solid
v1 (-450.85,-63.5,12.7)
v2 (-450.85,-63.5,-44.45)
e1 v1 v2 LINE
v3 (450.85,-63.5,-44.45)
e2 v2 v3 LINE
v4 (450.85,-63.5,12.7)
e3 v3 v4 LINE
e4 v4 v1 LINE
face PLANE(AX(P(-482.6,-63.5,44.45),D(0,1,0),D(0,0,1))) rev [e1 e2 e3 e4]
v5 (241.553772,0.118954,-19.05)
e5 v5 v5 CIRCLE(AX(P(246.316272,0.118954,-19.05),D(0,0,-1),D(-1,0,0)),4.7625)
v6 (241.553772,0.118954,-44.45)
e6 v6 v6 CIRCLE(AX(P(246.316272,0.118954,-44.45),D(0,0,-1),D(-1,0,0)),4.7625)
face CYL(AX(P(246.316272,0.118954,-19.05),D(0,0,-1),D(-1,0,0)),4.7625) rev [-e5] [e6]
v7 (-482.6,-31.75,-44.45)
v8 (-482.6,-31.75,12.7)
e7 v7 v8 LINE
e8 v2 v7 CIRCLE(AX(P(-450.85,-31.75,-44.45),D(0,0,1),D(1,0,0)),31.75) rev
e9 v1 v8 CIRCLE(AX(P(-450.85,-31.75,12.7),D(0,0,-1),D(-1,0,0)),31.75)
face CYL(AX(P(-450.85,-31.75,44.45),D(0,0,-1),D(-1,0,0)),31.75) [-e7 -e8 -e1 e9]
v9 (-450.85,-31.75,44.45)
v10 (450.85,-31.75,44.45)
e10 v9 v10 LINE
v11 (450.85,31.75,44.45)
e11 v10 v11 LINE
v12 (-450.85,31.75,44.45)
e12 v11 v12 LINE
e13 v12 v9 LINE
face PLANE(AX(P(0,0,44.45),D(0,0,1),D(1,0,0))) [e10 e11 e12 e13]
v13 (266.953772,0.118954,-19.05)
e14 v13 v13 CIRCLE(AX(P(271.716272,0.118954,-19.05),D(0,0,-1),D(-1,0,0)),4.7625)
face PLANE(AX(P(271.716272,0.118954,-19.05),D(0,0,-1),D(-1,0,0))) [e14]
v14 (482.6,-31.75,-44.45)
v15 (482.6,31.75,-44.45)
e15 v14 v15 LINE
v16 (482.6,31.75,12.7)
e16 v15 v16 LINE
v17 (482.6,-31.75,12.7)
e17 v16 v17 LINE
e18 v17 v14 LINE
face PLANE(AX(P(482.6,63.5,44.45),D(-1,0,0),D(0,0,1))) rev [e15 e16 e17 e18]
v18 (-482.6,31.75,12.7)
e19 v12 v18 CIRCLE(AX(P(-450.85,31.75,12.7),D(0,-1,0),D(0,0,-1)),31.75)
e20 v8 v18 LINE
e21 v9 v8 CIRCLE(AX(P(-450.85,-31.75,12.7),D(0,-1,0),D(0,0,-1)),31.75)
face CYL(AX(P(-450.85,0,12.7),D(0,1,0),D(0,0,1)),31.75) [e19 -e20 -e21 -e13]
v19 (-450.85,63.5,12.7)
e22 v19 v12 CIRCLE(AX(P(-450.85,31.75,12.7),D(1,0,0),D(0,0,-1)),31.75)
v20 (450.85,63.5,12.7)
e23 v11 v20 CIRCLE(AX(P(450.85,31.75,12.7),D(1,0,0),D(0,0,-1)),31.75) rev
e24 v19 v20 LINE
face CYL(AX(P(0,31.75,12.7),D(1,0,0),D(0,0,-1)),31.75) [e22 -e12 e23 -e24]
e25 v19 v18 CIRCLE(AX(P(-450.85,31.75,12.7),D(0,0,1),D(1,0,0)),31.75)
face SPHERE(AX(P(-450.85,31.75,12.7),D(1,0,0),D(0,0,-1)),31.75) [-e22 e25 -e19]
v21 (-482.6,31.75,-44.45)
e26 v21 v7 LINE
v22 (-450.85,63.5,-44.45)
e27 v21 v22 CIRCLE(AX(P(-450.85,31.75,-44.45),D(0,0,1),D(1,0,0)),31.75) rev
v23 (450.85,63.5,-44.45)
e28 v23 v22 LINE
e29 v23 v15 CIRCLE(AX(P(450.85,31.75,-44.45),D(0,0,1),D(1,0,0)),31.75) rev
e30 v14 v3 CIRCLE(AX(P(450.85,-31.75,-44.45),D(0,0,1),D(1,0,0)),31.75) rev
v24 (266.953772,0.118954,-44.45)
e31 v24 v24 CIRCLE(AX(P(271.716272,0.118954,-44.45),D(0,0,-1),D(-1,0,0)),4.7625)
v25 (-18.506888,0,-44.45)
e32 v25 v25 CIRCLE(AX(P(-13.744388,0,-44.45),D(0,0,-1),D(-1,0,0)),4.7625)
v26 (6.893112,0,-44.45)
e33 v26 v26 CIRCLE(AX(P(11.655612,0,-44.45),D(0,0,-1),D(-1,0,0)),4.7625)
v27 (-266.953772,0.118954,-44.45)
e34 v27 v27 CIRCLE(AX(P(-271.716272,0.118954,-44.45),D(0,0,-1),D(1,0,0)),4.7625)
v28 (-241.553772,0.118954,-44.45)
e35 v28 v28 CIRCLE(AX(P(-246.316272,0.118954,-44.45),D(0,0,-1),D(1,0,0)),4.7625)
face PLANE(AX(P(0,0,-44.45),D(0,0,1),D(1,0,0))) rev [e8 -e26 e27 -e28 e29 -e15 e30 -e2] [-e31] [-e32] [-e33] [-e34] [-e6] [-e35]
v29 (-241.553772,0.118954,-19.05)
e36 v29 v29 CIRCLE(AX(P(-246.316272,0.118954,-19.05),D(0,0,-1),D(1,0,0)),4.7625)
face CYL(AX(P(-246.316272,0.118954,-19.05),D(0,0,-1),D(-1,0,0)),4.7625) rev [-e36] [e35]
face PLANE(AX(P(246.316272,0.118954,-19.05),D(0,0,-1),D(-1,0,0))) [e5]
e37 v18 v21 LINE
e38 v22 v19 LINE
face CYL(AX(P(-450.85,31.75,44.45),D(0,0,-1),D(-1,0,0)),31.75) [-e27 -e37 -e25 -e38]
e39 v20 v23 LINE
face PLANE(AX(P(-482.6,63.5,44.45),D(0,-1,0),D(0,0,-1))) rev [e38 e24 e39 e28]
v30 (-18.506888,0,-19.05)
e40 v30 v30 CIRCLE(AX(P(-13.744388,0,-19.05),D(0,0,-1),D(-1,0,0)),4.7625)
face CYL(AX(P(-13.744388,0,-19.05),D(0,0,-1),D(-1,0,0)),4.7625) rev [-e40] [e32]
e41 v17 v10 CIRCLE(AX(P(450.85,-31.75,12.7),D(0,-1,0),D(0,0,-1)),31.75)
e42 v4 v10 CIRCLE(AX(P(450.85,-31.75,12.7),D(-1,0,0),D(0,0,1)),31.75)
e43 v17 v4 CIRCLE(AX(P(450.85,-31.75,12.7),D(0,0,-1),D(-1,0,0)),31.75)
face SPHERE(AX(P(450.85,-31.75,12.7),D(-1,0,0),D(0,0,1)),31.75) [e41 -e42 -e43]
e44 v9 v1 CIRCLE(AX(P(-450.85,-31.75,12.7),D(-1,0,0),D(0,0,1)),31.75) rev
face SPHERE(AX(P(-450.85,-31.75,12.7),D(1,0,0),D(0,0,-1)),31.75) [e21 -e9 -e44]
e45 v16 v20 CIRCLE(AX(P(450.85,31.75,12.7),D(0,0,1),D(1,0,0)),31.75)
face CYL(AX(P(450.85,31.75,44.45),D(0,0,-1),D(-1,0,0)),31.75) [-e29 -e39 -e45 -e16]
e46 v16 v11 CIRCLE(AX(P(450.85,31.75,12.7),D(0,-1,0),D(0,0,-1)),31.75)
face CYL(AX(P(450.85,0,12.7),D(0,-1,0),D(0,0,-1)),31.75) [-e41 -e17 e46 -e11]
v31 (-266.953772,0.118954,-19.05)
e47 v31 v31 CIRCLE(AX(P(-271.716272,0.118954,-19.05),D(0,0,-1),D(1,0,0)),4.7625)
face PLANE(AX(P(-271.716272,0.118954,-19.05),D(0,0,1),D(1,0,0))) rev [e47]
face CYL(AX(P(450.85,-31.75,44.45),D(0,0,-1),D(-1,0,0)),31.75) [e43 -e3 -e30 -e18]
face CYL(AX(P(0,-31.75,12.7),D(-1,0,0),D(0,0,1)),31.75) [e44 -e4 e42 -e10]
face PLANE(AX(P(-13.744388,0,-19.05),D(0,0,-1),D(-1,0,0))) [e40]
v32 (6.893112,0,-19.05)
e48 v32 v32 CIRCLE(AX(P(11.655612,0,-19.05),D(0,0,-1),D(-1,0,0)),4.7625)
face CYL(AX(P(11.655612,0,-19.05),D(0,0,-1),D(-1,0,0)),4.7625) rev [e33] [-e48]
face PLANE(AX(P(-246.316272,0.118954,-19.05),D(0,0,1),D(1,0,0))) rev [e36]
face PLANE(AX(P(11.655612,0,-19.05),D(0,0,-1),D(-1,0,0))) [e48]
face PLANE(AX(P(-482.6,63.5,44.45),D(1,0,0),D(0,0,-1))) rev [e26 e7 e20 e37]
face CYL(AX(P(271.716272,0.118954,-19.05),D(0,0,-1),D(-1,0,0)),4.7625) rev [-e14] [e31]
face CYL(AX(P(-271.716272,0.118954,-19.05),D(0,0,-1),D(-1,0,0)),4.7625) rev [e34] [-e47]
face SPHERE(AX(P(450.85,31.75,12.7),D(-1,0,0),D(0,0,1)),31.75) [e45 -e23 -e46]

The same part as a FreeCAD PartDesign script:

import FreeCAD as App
import Part
import Sketcher
Q = App.Units.Quantity


def edges_at(feature, points):
    """Names of the edges that pass closest to the given points."""
    edges = feature.Shape.Edges
    near = lambda p: min(range(len(edges)), key=lambda i: edges[i].distToShape(Part.Vertex(*p))[0])
    return sorted({f"Edge{near(p) + 1}" for p in points})

doc = App.newDocument("Part")
body = doc.addObject("PartDesign::Body", "Body")

# Sketch on XY plane
sketch1 = doc.addObject("Sketcher::SketchObject", "Sketch")
body.addObject(sketch1)
sketch1.AttachmentSupport = (doc.XY_Plane, [""])
sketch1.MapMode = "FlatFace"
sketch1.addGeometry([
    Part.LineSegment(App.Vector(-483, 64, 0), App.Vector(-483, -64, 0)),
    Part.LineSegment(App.Vector(-483, -64, 0), App.Vector(483, -64, 0)),
    Part.LineSegment(App.Vector(483, -64, 0), App.Vector(483, 64, 0)),
    Part.LineSegment(App.Vector(483, 64, 0), App.Vector(-483, 64, 0)),
], False)
sketch1.addConstraint([
    Sketcher.Constraint("Coincident", 0, 2, 1, 1),
    Sketcher.Constraint("Coincident", 1, 2, 2, 1),
    Sketcher.Constraint("Coincident", 2, 2, 3, 1),
    Sketcher.Constraint("Coincident", 3, 2, 0, 1),
    Sketcher.Constraint("Vertical", 0),
    Sketcher.Constraint("Horizontal", 1),
    Sketcher.Constraint("Vertical", 2),
    Sketcher.Constraint("Horizontal", 3),
    Sketcher.Constraint("Symmetric", 0, 2, 2, 2, -1, 1),
    Sketcher.Constraint("DistanceX", 1, 1, 1, 2, Q("38 in")),
    Sketcher.Constraint("DistanceY", 0, 2, 0, 1, Q("5 in")),
])
pad1 = doc.addObject("PartDesign::Pad", "Pad")
body.addObject(pad1)
pad1.Profile = sketch1
pad1.Length = Q("3.5 in")
pad1.Midplane = True
doc.recompute()

fillet = doc.addObject("PartDesign::Fillet", "Fillet")
body.addObject(fillet)
fillet.Base = (pad1, edges_at(pad1, [(0, -63.5, 44.45), (0, 63.5, 44.45)]))
fillet.Radius = Q("1.25 in")
doc.recompute()

fillet2 = doc.addObject("PartDesign::Fillet", "Fillet001")
body.addObject(fillet2)
fillet2.Base = (fillet, edges_at(fillet, [
    (-482.6, 0, 44.45),
    (-482.6, -63.5, -15.875),
    (-482.6, 63.5, -15.875),
    (-482.6, 54.201, 35.151),
    (-482.6, -54.201, 35.151),
]))
fillet2.Radius = Q("1.25 in")
doc.recompute()

fillet3 = doc.addObject("PartDesign::Fillet", "Fillet002")
body.addObject(fillet3)
fillet3.Base = (fillet2, edges_at(fillet2, [
    (482.6, 0, 44.45),
    (482.6, 63.5, -15.875),
    (482.6, -63.5, -15.875),
    (482.6, 54.201, 35.151),
    (482.6, -54.201, 35.151),
]))
fillet3.Radius = Q("1.25 in")

# Sketch on XY plane
sketch2 = doc.addObject("Sketcher::SketchObject", "Sketch001")
body.addObject(sketch2)
sketch2.AttachmentSupport = (doc.XY_Plane, [""])
sketch2.MapMode = "FlatFace"
sketch2.AttachmentOffset = App.Placement(App.Vector(0, 0, -1.75 * 25.4), App.Rotation())
sketch2.addGeometry([
    Part.Circle(App.Vector(11.7, 0, 0), App.Vector(0, 0, 1), 4.8),  # 0
    Part.Circle(App.Vector(-13.7, 0, 0), App.Vector(0, 0, 1), 4.8),  # 1
    Part.Circle(App.Vector(271.7, 0.1, 0), App.Vector(0, 0, 1), 4.8),  # 2
    Part.Circle(App.Vector(246.3, 0.1, 0), App.Vector(0, 0, 1), 4.8),  # 3
    Part.Circle(App.Vector(-246.3, 0.1, 0), App.Vector(0, 0, 1), 4.8),  # 4
    Part.Circle(App.Vector(-271.7, 0.1, 0), App.Vector(0, 0, 1), 4.8),  # 5
], False)
sketch2.addConstraint([
    Sketcher.Constraint("Equal", 0, 1),
    Sketcher.Constraint("Equal", 1, 2),
    Sketcher.Constraint("Equal", 2, 3),
    Sketcher.Constraint("Equal", 3, 4),
    Sketcher.Constraint("Equal", 4, 5),
    Sketcher.Constraint("Symmetric", 3, 3, 4, 3, -2),
    Sketcher.Constraint("Symmetric", 2, 3, 5, 3, -2),
    Sketcher.Constraint("PointOnObject", 0, 3, -1),
    Sketcher.Constraint("PointOnObject", 1, 3, -1),
    Sketcher.Constraint("Horizontal", 2, 3, 3, 3),
    Sketcher.Constraint("Diameter", 0, Q("0.375 in")),
    Sketcher.Constraint("DistanceX", 1, 3, 0, 3, Q("1 in")),
    Sketcher.Constraint("DistanceX", 3, 3, 2, 3, Q("1 in")),
    Sketcher.Constraint("DistanceX", -1, 1, 0, 3, Q("11.655612 mm")),
    Sketcher.Constraint("DistanceX", -1, 1, 2, 3, Q("271.716272 mm")),
    Sketcher.Constraint("DistanceY", -1, 1, 2, 3, Q("0.118954 mm")),
])
pocket1 = doc.addObject("PartDesign::Pocket", "Pocket")
body.addObject(pocket1)
pocket1.Profile = sketch2
pocket1.Length = Q("1 in")
pocket1.Reversed = True

doc.recompute()
